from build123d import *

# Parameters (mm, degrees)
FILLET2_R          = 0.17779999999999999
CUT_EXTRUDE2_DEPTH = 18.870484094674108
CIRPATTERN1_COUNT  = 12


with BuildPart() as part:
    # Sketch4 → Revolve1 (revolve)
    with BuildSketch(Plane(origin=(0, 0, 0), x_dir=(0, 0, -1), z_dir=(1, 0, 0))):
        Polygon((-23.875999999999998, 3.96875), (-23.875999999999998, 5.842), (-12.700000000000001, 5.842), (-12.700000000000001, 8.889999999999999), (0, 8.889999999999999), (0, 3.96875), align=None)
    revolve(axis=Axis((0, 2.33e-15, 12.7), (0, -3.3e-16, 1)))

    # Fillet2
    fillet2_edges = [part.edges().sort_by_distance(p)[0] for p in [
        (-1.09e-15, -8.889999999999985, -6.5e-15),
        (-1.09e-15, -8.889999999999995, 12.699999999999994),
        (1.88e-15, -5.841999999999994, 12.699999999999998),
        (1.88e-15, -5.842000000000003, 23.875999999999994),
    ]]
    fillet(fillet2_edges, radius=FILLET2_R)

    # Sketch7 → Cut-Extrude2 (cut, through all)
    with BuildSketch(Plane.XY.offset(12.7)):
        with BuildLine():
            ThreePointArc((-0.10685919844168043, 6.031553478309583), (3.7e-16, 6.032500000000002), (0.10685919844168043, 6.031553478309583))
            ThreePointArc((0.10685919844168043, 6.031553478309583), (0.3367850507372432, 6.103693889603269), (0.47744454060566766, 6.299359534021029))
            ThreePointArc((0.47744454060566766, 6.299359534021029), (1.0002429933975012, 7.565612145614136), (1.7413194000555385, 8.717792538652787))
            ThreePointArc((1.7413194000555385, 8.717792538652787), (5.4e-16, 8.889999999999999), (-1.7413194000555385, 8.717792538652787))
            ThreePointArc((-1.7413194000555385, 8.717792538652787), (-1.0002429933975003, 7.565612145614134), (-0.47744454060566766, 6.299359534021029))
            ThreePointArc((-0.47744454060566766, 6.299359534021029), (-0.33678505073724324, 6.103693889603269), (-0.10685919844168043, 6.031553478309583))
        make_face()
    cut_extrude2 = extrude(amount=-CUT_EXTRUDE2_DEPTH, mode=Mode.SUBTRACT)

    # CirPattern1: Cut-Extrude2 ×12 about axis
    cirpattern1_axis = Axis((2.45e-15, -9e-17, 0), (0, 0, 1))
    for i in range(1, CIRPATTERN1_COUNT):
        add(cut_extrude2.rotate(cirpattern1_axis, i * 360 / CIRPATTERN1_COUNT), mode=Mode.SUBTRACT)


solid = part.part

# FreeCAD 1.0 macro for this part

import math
import FreeCAD as App
import Part
import Sketcher
Q = App.Units.Quantity


def edges_at(feature, points):
    """Names of the edges that pass closest to the given points."""
    edges = feature.Shape.Edges
    near = lambda p: min(range(len(edges)), key=lambda i: edges[i].distToShape(Part.Vertex(*p))[0])
    return sorted({f"Edge{near(p) + 1}" for p in points})


def add_polygon(sketch, points):
    """Adds a closed chain of lines whose ends are joined by coincident constraints."""
    first, n = sketch.GeometryCount, len(points)
    for a, b in zip(points, points[1:] + points[:1]):
        sketch.addGeometry(Part.LineSegment(App.Vector(*a, 0), App.Vector(*b, 0)), False)
    for i in range(n):
        sketch.addConstraint(Sketcher.Constraint("Coincident", first + i, 2, first + (i + 1) % n, 1))

doc = App.newDocument("Part")
params = doc.addObject("Spreadsheet::Sheet", "Params")
for row, (alias, value) in enumerate([
    ("sketch1_height", "0.5 in"),
    ("sketch1_width", "0.12 in"),
    ("sketch1_height2", "0.94 in"),
    ("revolution_angle", "360 deg"),
    ("fillet_radius", "0.007 in"),
    ("sketch2_radius", "0.3 in"),
    ("sketch2_radius2", "0.35 in"),
], start=1):
    params.set(f"A{row}", alias)
    params.set(f"B{row}", "=" + value)
    params.setAlias(f"B{row}", alias)

body = doc.addObject("PartDesign::Body", "Body")

sketch1 = body.newObject("Sketcher::SketchObject", "Sketch")
sketch1.AttachmentSupport = (doc.getObject("YZ_Plane"), [""])
sketch1.MapMode = "FlatFace"
add_polygon(sketch1, [(5.8, 23.9), (4, 23.9), (4, 0), (8.9, 0), (8.9, 12.7), (5.8, 12.7)])
sketch1.addConstraint([
    Sketcher.Constraint("Horizontal", 0),
    Sketcher.Constraint("Vertical", 1),
    Sketcher.Constraint("Horizontal", 2),
    Sketcher.Constraint("Vertical", 3),
    Sketcher.Constraint("Horizontal", 4),
    Sketcher.Constraint("Vertical", 5),
    Sketcher.Constraint("PointOnObject", 1, 2, -1),
    Sketcher.Constraint("DistanceY", 3, 1, 3, 2, Q("0.5 in")),
    Sketcher.Constraint("DistanceX", 4, 2, 4, 1, Q("0.12 in")),
    Sketcher.Constraint("DistanceY", 1, 2, 1, 1, Q("0.94 in")),
    Sketcher.Constraint("DistanceX", -1, 1, 2, 2, Q("0.35 in")),
    Sketcher.Constraint("DistanceX", -1, 1, 0, 2, Q("0.15625 in")),
])
sketch1.setExpression("Constraints[13]", "Params.sketch1_height")
sketch1.setExpression("Constraints[14]", "Params.sketch1_width")
sketch1.setExpression("Constraints[15]", "Params.sketch1_height2")
revolution = body.newObject("PartDesign::Revolution", "Revolution")
revolution.Profile = sketch1
revolution.ReferenceAxis = (sketch1, ["V_Axis"])
revolution.setExpression("Angle", "Params.revolution_angle")
doc.recompute()

fillet = body.newObject("PartDesign::Fillet", "Fillet")
fillet.Base = (revolution, edges_at(revolution, [
    (0, -8.89, 0),
    (0, -8.89, 12.7),
    (0, -5.842, 12.7),
    (0, -5.842, 23.876),
]))
fillet.setExpression("Radius", "Params.fillet_radius")

sketch2 = body.newObject("Sketcher::SketchObject", "Sketch001")
sketch2.AttachmentSupport = (doc.getObject("XY_Plane"), [""])
sketch2.MapMode = "FlatFace"
sketch2.AttachmentOffset = App.Placement(App.Vector(0, 0, 0.5 * 25.4), App.Rotation())
sketch2.addGeometry([
    Part.ArcOfCircle(Part.Circle(App.Vector(0, 0, 0), App.Vector(0, 0, 1), 6.03), math.radians(88.99), math.radians(91.01)),
    Part.ArcOfCircle(Part.Circle(App.Vector(0.11, 6.41, 0), App.Vector(0, 0, 1), 0.38), math.radians(-91), math.radians(-17)),
    Part.ArcOfCircle(Part.Circle(App.Vector(7.75, 4.04, 0), App.Vector(0, 0, 1), 7.62), math.radians(142), math.radians(163)),
    Part.ArcOfCircle(Part.Circle(App.Vector(0, 0, 0), App.Vector(0, 0, 1), 8.89), math.radians(79), math.radians(101)),
    Part.ArcOfCircle(Part.Circle(App.Vector(-7.75, 4.04, 0), App.Vector(0, 0, 1), 7.62), math.radians(17), math.radians(38)),
    Part.ArcOfCircle(Part.Circle(App.Vector(-0.11, 6.41, 0), App.Vector(0, 0, 1), 0.38), math.radians(-163), math.radians(-89)),
], False)
sketch2.addConstraint([
    Sketcher.Constraint("Tangent", 0, 1, 1, 1),
    Sketcher.Constraint("Tangent", 1, 2, 2, 2),
    Sketcher.Constraint("Coincident", 2, 1, 3, 1),
    Sketcher.Constraint("Coincident", 3, 2, 4, 2),
    Sketcher.Constraint("Tangent", 4, 1, 5, 1),
    Sketcher.Constraint("Tangent", 5, 2, 0, 2),
    Sketcher.Constraint("Coincident", 0, 3, -1, 1),
    Sketcher.Constraint("Coincident", 3, 3, -1, 1),
    Sketcher.Constraint("Equal", 2, 4),
    Sketcher.Constraint("Equal", 1, 5),
    Sketcher.Constraint("Symmetric", 2, 3, 4, 3, -2),
    Sketcher.Constraint("Radius", 2, Q("0.3 in")),
    Sketcher.Constraint("Radius", 3, Q("0.35 in")),
    Sketcher.Constraint("Radius", 0, Q("0.2375 in")),
    Sketcher.Constraint("Radius", 1, Q("0.381028 mm")),
    Sketcher.Constraint("DistanceX", -1, 1, 1, 3, Q("0.113609 mm")),
    Sketcher.Constraint("DistanceX", -1, 1, 2, 3, Q("7.753632 mm")),
])
sketch2.setExpression("Constraints[11]", "Params.sketch2_radius")
sketch2.setExpression("Constraints[12]", "Params.sketch2_radius2")
pocket1 = body.newObject("PartDesign::Pocket", "Pocket")
pocket1.Profile = sketch2
pocket1.Type = "ThroughAll"
doc.recompute()

polarpattern = body.newObject("PartDesign::PolarPattern", "PolarPattern")
polarpattern.Originals = [pocket1]
polarpattern.Axis = (doc.getObject("Z_Axis"), [""])
polarpattern.Angle = 360
polarpattern.Occurrences = 12
body.Tip = polarpattern

doc.recompute()
